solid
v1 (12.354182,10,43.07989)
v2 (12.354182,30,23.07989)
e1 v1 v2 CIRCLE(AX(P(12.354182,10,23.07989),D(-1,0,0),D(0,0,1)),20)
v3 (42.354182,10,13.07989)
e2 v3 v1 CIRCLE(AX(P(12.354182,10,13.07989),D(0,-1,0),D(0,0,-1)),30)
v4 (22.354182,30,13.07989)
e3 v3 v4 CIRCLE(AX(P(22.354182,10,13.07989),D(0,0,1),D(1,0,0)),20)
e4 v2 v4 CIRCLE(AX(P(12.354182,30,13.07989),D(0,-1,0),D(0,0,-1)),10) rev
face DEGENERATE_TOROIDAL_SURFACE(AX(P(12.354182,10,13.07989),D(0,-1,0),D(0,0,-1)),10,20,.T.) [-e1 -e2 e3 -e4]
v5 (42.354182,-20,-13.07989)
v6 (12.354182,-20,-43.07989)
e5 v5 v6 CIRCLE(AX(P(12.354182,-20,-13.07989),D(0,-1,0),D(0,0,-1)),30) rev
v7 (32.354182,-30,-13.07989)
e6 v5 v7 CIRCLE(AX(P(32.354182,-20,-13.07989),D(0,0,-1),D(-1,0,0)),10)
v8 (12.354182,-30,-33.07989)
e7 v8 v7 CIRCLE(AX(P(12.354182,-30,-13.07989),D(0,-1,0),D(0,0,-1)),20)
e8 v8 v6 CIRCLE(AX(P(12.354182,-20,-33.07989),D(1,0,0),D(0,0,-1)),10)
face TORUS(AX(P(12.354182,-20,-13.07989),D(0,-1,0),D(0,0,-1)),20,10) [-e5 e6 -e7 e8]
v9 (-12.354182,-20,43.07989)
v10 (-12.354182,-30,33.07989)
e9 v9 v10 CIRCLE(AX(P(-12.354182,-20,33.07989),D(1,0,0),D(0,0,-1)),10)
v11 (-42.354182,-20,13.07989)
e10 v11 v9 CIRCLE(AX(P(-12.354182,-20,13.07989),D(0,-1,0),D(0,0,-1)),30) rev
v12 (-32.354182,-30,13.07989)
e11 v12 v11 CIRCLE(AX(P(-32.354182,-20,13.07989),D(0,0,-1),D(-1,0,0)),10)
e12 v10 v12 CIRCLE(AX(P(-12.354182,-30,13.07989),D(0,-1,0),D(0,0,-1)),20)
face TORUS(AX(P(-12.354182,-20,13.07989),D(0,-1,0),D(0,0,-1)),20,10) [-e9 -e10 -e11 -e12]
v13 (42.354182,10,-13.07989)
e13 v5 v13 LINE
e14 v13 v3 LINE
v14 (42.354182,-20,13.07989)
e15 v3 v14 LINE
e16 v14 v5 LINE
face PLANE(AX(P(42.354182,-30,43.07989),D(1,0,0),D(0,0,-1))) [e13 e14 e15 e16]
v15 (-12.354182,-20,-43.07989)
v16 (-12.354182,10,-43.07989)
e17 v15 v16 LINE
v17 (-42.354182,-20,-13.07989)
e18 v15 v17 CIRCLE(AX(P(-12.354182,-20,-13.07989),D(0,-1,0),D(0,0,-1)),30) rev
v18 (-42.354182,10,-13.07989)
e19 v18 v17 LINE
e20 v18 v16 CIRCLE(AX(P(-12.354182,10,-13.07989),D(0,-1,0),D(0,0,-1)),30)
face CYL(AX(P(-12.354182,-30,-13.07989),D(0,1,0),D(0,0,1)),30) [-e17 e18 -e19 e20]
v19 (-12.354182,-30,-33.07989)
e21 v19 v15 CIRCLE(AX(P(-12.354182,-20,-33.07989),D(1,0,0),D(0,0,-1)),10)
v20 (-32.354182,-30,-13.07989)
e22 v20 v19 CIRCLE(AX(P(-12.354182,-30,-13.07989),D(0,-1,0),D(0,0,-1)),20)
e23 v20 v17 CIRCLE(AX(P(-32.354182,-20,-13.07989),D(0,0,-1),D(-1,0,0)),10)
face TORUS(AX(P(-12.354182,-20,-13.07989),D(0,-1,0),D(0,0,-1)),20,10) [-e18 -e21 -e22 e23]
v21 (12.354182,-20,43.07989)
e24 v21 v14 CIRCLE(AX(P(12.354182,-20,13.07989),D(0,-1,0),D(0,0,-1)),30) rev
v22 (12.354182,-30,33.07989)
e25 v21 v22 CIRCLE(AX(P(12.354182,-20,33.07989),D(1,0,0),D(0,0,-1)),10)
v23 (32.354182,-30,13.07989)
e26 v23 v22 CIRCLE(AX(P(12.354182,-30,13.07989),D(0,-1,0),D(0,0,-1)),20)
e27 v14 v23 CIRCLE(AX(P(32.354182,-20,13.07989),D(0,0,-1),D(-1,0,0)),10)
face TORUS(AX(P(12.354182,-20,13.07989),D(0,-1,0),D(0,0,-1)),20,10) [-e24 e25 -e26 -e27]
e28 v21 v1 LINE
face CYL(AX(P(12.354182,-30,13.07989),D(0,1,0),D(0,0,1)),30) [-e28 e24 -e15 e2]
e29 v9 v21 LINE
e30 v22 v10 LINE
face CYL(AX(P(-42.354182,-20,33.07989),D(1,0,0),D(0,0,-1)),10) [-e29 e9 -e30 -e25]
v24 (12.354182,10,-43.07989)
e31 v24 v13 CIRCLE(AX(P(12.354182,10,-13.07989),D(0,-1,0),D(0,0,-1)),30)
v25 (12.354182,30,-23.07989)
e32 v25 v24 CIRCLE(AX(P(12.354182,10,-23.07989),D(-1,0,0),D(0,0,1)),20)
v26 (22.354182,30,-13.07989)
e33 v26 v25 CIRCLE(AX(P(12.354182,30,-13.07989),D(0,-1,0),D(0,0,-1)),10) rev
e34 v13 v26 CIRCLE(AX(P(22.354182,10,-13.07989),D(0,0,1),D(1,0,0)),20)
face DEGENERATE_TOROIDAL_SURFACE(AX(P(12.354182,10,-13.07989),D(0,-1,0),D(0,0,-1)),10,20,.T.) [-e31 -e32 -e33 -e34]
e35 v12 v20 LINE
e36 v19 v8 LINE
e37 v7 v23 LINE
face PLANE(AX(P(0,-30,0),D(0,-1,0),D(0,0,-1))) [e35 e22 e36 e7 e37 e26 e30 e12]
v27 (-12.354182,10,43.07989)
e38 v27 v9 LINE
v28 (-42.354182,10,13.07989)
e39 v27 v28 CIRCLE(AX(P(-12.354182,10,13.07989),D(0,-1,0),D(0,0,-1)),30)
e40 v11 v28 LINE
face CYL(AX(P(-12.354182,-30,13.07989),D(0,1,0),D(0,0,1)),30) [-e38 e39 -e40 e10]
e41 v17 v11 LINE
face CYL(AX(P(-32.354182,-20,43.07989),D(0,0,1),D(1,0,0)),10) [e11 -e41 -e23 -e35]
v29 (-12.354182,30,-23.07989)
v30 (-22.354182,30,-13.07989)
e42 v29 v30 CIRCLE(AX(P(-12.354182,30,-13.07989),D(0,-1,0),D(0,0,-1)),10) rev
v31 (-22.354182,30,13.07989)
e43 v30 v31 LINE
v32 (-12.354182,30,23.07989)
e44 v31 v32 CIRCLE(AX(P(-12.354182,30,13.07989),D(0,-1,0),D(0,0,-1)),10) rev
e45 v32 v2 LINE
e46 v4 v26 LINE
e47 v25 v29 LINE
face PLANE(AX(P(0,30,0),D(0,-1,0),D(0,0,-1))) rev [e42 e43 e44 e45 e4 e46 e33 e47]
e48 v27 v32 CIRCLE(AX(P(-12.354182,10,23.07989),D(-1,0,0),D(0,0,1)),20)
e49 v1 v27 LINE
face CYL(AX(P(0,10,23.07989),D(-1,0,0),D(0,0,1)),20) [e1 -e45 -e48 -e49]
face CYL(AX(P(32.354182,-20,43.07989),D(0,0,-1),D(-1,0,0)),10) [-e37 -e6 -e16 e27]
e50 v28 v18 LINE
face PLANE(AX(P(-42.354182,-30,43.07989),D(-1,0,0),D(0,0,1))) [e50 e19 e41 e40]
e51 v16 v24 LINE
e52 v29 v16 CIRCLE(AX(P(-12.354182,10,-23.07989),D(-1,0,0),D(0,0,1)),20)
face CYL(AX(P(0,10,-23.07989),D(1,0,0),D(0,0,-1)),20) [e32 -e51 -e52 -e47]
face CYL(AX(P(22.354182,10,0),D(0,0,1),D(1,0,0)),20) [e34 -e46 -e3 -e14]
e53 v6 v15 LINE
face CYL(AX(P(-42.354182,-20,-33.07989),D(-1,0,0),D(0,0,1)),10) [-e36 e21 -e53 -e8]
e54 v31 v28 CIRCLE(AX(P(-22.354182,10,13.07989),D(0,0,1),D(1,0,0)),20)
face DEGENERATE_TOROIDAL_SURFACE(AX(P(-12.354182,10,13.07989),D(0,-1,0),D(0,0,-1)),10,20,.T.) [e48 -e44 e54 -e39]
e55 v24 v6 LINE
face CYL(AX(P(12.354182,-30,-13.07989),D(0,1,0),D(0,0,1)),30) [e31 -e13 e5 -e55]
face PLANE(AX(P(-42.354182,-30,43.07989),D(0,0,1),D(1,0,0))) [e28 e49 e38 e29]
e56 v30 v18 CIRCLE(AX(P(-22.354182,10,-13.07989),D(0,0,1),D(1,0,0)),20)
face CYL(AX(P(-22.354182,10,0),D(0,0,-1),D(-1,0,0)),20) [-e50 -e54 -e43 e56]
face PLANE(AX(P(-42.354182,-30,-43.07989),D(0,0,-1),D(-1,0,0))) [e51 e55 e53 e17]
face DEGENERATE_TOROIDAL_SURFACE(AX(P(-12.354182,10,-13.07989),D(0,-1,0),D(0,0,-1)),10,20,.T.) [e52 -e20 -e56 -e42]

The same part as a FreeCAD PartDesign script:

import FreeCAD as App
import Part
import Sketcher
from FreeCAD import Vector


def edges_at(feature, points):
    """Names of the edges that pass closest to the given points."""
    edges = feature.Shape.Edges
    near = lambda p: min(range(len(edges)), key=lambda i: edges[i].distToShape(Part.Vertex(*p))[0])
    return sorted({f"Edge{near(p) + 1}" for p in points})


def add_polygon(sketch, points):
    """Adds a closed chain of lines whose ends are joined by coincident constraints."""
    first, n = sketch.GeometryCount, len(points)
    for a, b in zip(points, points[1:] + points[:1]):
        sketch.addGeometry(Part.LineSegment(App.Vector(*a, 0), App.Vector(*b, 0)), False)
    for i in range(n):
        sketch.addConstraint(Sketcher.Constraint("Coincident", first + i, 2, first + (i + 1) % n, 1))

doc = App.newDocument("Part")
body = doc.addObject("PartDesign::Body", "Body")

# Sketch on XZ plane
sketch1 = body.newObject("Sketcher::SketchObject", "Sketch")
sketch1.AttachmentSupport = (doc.getObject("XZ_Plane"), [""])
sketch1.MapMode = "FlatFace"
add_polygon(sketch1, [(-42, -43), (-42, 43), (42, 43), (42, -43)])  # lines 0-3
sketch1.addConstraint([
    Sketcher.Constraint("Vertical", 0),
    Sketcher.Constraint("Horizontal", 1),
    Sketcher.Constraint("Vertical", 2),
    Sketcher.Constraint("Horizontal", 3),
    Sketcher.Constraint("Symmetric", 0, 2, 2, 2, -1, 1),
    Sketcher.Constraint("DistanceY", 0, 1, 0, 2, 86.15978),
    Sketcher.Constraint("DistanceX", 1, 1, 1, 2, 84.708364),
])
pad1 = body.newObject("PartDesign::Pad", "Pad")
pad1.Profile = sketch1
pad1.Type = "TwoLengths"
pad1.Length = 30
pad1.Length2 = 30
pad1.Reversed = True
doc.recompute()

fillet = body.newObject("PartDesign::Fillet", "Fillet")
fillet.Base = (pad1, edges_at(pad1, [
    (42.354, 0, 43.08),
    (-42.354, 0, 43.08),
    (-42.354, 0, -43.08),
    (42.354, 0, -43.08),
]))
fillet.Radius = 30
doc.recompute()

fillet2 = body.newObject("PartDesign::Fillet", "Fillet001")
fillet2.Base = (fillet, edges_at(fillet, [
    (0, 30, 43.08),
    (42.354, 30, 0),
    (0, 30, -43.08),
    (-42.354, 30, 0),
    (-33.567, 30, -34.293),
    (-33.567, 30, 34.293),
    (33.567, 30, -34.293),
    (33.567, 30, 34.293),
]))
fillet2.Radius = 20
doc.recompute()

fillet3 = body.newObject("PartDesign::Fillet", "Fillet002")
fillet3.Base = (fillet2, edges_at(fillet2, [
    (0, -30, 43.08),
    (42.354, -30, 0),
    (-42.354, -30, 0),
    (0, -30, -43.08),
    (-33.567, -30, -34.293),
    (-33.567, -30, 34.293),
    (33.567, -30, -34.293),
    (33.567, -30, 34.293),
]))
fillet3.Radius = 10

doc.recompute()
